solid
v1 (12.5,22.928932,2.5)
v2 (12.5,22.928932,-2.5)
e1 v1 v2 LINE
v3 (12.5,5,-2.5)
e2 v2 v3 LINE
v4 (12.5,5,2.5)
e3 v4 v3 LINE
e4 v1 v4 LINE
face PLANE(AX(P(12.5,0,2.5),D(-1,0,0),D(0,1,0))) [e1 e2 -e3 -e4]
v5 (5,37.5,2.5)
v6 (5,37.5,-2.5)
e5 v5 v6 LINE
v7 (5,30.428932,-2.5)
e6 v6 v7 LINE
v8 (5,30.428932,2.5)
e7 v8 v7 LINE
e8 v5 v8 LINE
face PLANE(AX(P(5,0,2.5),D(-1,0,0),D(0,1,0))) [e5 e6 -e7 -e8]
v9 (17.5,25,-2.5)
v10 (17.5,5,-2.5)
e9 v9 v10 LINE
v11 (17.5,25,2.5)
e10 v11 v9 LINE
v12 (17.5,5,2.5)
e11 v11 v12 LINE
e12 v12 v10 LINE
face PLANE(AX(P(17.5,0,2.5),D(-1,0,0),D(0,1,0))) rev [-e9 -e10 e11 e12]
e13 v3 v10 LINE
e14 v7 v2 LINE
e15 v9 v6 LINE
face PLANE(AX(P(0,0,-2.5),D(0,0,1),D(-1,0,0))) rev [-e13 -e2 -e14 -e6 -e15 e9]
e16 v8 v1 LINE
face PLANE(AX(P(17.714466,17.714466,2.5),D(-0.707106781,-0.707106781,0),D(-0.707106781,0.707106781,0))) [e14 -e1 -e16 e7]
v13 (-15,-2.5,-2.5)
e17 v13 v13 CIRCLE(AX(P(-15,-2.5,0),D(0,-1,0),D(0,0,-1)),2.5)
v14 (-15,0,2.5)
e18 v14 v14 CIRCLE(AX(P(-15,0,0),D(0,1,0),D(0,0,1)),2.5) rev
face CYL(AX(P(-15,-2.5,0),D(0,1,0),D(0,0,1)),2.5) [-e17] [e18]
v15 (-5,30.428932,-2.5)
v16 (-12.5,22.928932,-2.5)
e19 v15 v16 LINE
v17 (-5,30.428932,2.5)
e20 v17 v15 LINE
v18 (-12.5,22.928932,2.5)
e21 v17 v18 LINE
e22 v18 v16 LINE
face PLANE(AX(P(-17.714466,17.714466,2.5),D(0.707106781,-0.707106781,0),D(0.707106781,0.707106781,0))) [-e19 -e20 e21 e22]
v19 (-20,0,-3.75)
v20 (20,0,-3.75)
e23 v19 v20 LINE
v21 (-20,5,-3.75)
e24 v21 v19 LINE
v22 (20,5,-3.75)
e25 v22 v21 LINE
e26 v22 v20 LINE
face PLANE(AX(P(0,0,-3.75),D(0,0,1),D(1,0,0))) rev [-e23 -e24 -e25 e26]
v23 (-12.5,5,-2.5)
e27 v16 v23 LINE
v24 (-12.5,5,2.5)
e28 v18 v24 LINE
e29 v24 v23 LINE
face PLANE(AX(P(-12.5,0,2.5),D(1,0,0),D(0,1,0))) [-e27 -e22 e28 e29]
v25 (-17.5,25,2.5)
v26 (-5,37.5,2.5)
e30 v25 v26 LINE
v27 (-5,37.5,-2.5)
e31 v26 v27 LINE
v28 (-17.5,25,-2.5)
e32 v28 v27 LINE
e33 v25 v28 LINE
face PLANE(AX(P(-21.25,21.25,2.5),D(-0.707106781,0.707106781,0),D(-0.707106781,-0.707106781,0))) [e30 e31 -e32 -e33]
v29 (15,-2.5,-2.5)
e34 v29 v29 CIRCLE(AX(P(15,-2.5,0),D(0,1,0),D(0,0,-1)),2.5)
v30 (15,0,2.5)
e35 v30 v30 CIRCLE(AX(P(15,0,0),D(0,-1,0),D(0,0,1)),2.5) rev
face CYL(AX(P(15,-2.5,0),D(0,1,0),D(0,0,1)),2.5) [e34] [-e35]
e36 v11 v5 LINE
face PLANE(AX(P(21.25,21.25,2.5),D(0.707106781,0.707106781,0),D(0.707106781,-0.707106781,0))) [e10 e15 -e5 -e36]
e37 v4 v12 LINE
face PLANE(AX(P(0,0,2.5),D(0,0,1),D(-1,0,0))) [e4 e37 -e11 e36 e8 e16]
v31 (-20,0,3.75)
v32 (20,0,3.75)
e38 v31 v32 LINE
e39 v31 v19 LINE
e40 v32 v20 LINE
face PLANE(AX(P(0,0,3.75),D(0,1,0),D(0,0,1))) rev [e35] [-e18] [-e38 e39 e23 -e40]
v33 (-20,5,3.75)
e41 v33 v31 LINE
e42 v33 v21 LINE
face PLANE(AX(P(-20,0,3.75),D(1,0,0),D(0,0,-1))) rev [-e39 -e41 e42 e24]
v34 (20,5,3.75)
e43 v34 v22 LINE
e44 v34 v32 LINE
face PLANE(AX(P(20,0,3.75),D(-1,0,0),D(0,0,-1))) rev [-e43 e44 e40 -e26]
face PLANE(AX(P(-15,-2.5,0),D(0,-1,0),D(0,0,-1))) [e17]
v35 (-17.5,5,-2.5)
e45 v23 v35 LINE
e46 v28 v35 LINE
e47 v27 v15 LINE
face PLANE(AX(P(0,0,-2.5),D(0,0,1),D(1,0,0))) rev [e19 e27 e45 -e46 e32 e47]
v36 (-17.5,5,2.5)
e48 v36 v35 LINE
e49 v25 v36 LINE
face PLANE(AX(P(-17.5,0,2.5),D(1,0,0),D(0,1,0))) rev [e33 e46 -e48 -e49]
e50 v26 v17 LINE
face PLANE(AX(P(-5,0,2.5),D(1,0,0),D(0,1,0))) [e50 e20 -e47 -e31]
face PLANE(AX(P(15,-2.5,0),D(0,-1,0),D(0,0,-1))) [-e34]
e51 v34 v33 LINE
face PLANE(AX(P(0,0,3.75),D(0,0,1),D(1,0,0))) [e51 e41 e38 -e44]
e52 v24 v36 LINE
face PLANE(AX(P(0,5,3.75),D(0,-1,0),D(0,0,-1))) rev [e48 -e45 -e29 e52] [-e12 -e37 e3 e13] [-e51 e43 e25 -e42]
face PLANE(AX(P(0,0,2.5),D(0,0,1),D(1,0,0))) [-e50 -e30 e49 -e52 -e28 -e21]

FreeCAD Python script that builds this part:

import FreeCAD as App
import Part
import Sketcher
from FreeCAD import Vector
Q = App.Units.Quantity

doc = App.newDocument("Part")
params = doc.addObject("Spreadsheet::Sheet", "Params")
for row, (alias, value) in enumerate([
    ("sketch1_width", "5 mm"),
    ("sketch1_height", "20 mm"),
    ("pad1_length", "5 mm"),
    ("sketch2_width", "20 mm"),
    ("sketch2_height", "5 mm"),
    ("pad2_length", "7.5 mm"),
    ("sketch3_diameter", "5 mm"),
    ("pad3_length", "2.5 mm"),
], start=1):
    params.set(f"A{row}", alias)
    params.set(f"B{row}", "=" + value)
    params.setAlias(f"B{row}", alias)

body = doc.addObject("PartDesign::Body", "Body")

# Sketch on XY plane
sketch1 = body.newObject("Sketcher::SketchObject", "Sketch")
sketch1.AttachmentSupport = (doc.getObject("XY_Plane"), [""])
sketch1.MapMode = "FlatFace"
sketch1.addGeometry(Part.LineSegment(Vector(-5, 38, 0), Vector(-18, 25, 0)), False)
sketch1.addGeometry(Part.LineSegment(Vector(-18, 25, 0), Vector(-18, 5, 0)), False)
sketch1.addGeometry(Part.LineSegment(Vector(-18, 5, 0), Vector(-12, 5, 0)), False)
sketch1.addGeometry(Part.LineSegment(Vector(-12, 5, 0), Vector(-12, 23, 0)), False)
sketch1.addGeometry(Part.LineSegment(Vector(-12, 23, 0), Vector(-5, 30, 0)), False)
sketch1.addGeometry(Part.LineSegment(Vector(-5, 30, 0), Vector(-5, 38, 0)), False)
sketch1.addConstraint(Sketcher.Constraint("Coincident", 0, 2, 1, 1))
sketch1.addConstraint(Sketcher.Constraint("Coincident", 1, 2, 2, 1))
sketch1.addConstraint(Sketcher.Constraint("Coincident", 2, 2, 3, 1))
sketch1.addConstraint(Sketcher.Constraint("Coincident", 3, 2, 4, 1))
sketch1.addConstraint(Sketcher.Constraint("Coincident", 4, 2, 5, 1))
sketch1.addConstraint(Sketcher.Constraint("Coincident", 5, 2, 0, 1))
sketch1.addConstraint(Sketcher.Constraint("Vertical", 1))
sketch1.addConstraint(Sketcher.Constraint("Horizontal", 2))
sketch1.addConstraint(Sketcher.Constraint("Vertical", 3))
sketch1.addConstraint(Sketcher.Constraint("Vertical", 5))
sketch1.addConstraint(Sketcher.Constraint("Parallel", 0, 4))
sketch1.addConstraint(Sketcher.Constraint("DistanceX", 2, 1, 2, 2, Q("5 mm")))
sketch1.addConstraint(Sketcher.Constraint("DistanceY", 1, 2, 1, 1, Q("20 mm")))
sketch1.addConstraint(Sketcher.Constraint("Angle", 0, Q("-135 deg")))
sketch1.addConstraint(Sketcher.Constraint("DistanceY", -1, 1, 0, 2, Q("25 mm")))
sketch1.addConstraint(Sketcher.Constraint("DistanceX", 4, 2, -1, 1, Q("5 mm")))
sketch1.addConstraint(Sketcher.Constraint("DistanceX", 0, 2, -1, 1, Q("17.5 mm")))
sketch1.addConstraint(Sketcher.Constraint("DistanceY", 3, 1, 3, 2, Q("17.928932 mm")))
sketch1.setExpression("Constraints[11]", "Params.sketch1_width")
sketch1.setExpression("Constraints[12]", "Params.sketch1_height")
pad1 = body.newObject("PartDesign::Pad", "Pad")
pad1.Profile = sketch1
pad1.setExpression("Length", "Params.pad1_length")
pad1.Midplane = True

# Sketch on XY plane
sketch2 = body.newObject("Sketcher::SketchObject", "Sketch001")
sketch2.AttachmentSupport = (doc.getObject("XY_Plane"), [""])
sketch2.MapMode = "FlatFace"
sketch2.addGeometry(Part.LineSegment(Vector(-20, 5, 0), Vector(-20, 0, 0)), False)
sketch2.addGeometry(Part.LineSegment(Vector(-20, 0, 0), Vector(0, 0, 0)), False)
sketch2.addGeometry(Part.LineSegment(Vector(0, 0, 0), Vector(0, 5, 0)), False)
sketch2.addGeometry(Part.LineSegment(Vector(0, 5, 0), Vector(-20, 5, 0)), False)
sketch2.addConstraint(Sketcher.Constraint("Coincident", 0, 2, 1, 1))
sketch2.addConstraint(Sketcher.Constraint("Coincident", 1, 2, 2, 1))
sketch2.addConstraint(Sketcher.Constraint("Coincident", 2, 2, 3, 1))
sketch2.addConstraint(Sketcher.Constraint("Coincident", 3, 2, 0, 1))
sketch2.addConstraint(Sketcher.Constraint("Vertical", 0))
sketch2.addConstraint(Sketcher.Constraint("Horizontal", 1))
sketch2.addConstraint(Sketcher.Constraint("Vertical", 2))
sketch2.addConstraint(Sketcher.Constraint("Horizontal", 3))
sketch2.addConstraint(Sketcher.Constraint("Coincident", 1, 2, -1, 1))
sketch2.addConstraint(Sketcher.Constraint("DistanceX", 1, 1, 1, 2, Q("20 mm")))
sketch2.addConstraint(Sketcher.Constraint("DistanceY", 0, 2, 0, 1, Q("5 mm")))
sketch2.setExpression("Constraints[9]", "Params.sketch2_width")
sketch2.setExpression("Constraints[10]", "Params.sketch2_height")
pad2 = body.newObject("PartDesign::Pad", "Pad001")
pad2.Profile = sketch2
pad2.setExpression("Length", "Params.pad2_length")
pad2.Midplane = True

# Sketch on XZ plane
sketch3 = body.newObject("Sketcher::SketchObject", "Sketch002")
sketch3.AttachmentSupport = (doc.getObject("XZ_Plane"), [""])
sketch3.MapMode = "FlatFace"
sketch3.addGeometry(Part.Circle(Vector(-15, 0, 0), Vector(0, 0, 1), 2.5), False)
sketch3.addConstraint(Sketcher.Constraint("PointOnObject", 0, 3, -1))
sketch3.addConstraint(Sketcher.Constraint("Diameter", 0, Q("5 mm")))
sketch3.addConstraint(Sketcher.Constraint("DistanceX", 0, 3, -1, 1, Q("15 mm")))
sketch3.setExpression("Constraints[1]", "Params.sketch3_diameter")
pad3 = body.newObject("PartDesign::Pad", "Pad002")
pad3.Profile = sketch3
pad3.setExpression("Length", "Params.pad3_length")
doc.recompute()

mirrored = body.newObject("PartDesign::Mirrored", "Mirrored")
mirrored.Originals = [pad1, pad2, pad3]
mirrored.MirrorPlane = (doc.getObject("YZ_Plane"), [""])
body.Tip = mirrored

doc.recompute()
